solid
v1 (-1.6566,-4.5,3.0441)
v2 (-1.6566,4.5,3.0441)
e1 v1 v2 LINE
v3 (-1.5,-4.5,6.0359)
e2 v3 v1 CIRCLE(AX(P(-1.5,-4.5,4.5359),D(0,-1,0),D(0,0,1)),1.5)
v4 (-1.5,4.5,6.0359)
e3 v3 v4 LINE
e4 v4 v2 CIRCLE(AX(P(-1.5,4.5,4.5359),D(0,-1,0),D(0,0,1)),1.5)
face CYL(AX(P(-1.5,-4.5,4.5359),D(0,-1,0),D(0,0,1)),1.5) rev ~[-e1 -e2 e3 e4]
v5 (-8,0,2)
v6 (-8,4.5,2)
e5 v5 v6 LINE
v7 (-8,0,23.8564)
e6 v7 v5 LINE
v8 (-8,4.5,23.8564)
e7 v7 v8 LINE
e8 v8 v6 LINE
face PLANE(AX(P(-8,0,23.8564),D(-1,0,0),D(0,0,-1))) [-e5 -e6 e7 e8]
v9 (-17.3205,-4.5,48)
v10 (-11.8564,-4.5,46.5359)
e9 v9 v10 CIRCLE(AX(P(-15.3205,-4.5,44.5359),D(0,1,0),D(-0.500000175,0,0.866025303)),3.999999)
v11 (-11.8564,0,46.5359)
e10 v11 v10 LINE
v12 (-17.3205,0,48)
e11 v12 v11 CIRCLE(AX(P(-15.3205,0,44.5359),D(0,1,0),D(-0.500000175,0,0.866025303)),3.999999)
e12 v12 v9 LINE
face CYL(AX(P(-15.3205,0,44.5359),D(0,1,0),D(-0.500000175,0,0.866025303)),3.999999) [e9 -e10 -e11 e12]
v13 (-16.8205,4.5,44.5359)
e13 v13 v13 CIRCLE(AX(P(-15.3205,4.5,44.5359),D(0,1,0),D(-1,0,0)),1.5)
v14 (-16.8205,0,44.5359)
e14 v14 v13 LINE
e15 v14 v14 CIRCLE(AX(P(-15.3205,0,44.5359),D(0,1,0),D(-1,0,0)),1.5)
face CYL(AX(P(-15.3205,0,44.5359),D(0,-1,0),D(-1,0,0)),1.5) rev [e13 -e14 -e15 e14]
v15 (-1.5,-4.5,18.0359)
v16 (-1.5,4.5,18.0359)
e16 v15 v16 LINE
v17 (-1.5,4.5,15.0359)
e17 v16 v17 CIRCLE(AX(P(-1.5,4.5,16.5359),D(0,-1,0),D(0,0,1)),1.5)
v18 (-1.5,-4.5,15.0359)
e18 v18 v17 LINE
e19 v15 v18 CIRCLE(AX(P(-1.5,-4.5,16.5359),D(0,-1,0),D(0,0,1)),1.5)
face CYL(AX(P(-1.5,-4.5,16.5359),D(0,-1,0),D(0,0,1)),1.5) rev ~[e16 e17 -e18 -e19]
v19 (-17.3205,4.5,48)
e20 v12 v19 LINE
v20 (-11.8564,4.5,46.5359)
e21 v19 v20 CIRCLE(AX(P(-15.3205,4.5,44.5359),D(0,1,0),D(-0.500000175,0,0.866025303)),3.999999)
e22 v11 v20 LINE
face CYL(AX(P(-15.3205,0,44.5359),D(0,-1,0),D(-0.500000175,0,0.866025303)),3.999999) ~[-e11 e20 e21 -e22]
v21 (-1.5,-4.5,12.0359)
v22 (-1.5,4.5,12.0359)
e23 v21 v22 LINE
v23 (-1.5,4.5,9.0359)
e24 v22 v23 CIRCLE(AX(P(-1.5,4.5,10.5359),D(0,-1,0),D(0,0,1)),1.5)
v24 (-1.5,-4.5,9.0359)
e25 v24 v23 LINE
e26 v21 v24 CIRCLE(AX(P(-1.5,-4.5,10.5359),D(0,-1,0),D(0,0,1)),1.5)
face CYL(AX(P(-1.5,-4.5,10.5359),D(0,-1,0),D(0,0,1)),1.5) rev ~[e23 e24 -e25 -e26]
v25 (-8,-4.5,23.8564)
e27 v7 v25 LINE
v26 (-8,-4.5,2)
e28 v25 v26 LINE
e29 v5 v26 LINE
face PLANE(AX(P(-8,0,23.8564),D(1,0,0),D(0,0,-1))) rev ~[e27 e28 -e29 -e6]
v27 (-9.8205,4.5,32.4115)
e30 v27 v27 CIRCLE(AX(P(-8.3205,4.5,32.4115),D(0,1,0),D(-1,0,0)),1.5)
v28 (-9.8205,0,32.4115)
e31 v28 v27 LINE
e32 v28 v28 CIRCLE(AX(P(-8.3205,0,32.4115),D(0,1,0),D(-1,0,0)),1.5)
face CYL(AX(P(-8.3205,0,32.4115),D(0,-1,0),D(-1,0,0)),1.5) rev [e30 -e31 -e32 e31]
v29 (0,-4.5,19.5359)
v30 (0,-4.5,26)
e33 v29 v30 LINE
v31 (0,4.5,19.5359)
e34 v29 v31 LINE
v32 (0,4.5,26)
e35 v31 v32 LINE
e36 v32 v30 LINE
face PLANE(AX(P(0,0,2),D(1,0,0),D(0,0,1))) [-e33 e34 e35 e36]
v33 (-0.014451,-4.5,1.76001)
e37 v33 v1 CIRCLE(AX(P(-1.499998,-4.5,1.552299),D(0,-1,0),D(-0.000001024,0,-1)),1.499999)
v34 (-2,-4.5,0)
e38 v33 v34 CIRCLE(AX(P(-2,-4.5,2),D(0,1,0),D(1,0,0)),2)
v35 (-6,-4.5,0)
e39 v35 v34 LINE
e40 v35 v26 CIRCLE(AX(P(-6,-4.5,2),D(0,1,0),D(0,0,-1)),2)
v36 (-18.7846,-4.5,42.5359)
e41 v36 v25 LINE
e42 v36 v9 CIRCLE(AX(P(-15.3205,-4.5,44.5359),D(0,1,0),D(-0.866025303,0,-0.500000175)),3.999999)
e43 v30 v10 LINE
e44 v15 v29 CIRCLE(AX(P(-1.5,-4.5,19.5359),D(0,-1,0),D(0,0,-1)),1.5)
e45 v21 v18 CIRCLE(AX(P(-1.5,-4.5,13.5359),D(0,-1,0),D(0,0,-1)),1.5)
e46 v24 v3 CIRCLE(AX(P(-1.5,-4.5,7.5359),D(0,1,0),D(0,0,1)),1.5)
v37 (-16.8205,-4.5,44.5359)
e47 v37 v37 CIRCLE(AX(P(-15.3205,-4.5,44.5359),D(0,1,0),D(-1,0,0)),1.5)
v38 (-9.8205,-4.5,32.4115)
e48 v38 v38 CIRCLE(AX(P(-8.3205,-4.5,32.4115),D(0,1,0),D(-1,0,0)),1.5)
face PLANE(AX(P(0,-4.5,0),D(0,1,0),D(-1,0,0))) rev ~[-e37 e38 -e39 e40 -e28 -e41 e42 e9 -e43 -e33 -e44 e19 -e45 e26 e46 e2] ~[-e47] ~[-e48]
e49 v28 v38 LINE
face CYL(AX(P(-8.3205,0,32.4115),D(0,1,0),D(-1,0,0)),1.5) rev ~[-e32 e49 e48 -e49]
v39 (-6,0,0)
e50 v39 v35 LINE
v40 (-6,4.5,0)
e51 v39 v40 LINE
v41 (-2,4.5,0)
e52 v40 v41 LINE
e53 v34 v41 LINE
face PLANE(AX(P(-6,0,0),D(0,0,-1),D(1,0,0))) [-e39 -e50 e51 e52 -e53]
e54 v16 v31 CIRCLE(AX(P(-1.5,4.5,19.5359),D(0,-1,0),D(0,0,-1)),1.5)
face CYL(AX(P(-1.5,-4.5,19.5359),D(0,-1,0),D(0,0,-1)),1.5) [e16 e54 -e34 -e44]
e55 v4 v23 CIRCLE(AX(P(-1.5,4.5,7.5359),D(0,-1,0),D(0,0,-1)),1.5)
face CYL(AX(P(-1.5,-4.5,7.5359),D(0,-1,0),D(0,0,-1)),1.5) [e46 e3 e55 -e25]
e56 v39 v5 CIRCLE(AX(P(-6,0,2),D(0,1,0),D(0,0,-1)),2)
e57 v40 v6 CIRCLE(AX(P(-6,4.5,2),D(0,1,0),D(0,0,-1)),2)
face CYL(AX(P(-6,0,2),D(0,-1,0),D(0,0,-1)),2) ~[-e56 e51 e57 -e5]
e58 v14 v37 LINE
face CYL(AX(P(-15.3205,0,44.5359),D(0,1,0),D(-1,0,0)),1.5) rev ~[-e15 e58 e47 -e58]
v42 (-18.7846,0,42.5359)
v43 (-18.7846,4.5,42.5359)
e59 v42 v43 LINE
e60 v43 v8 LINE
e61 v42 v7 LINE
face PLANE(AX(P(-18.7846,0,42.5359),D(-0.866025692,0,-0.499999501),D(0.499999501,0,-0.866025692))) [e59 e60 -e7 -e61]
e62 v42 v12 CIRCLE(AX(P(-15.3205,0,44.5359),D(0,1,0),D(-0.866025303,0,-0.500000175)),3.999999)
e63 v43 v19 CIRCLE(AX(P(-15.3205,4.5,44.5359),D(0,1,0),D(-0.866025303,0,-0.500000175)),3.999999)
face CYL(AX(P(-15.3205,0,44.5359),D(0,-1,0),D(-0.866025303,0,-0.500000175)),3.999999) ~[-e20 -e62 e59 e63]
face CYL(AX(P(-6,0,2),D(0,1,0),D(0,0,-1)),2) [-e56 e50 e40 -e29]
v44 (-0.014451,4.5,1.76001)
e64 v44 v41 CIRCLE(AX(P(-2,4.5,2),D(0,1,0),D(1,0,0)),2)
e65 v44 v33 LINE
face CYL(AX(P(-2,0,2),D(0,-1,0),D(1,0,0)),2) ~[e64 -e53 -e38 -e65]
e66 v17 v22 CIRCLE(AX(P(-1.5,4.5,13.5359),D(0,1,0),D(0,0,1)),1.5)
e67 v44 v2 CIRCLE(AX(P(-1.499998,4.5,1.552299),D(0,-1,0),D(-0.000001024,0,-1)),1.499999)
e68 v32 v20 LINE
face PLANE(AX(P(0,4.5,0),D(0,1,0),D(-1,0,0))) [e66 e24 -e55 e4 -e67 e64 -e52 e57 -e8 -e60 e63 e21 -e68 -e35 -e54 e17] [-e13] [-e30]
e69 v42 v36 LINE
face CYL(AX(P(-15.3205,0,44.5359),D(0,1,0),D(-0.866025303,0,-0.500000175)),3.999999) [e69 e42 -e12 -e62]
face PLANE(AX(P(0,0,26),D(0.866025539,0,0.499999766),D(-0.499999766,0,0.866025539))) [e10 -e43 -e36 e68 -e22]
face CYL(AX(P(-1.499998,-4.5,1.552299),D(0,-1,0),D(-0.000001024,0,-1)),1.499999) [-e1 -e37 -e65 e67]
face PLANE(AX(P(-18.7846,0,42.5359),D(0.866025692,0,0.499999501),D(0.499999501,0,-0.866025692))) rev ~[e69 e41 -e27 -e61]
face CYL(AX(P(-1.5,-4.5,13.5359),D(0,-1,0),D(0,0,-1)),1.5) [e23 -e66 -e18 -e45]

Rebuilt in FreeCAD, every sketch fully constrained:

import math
import FreeCAD as App
import Part
import Sketcher
from FreeCAD import Vector

doc = App.newDocument("Part")
body = doc.addObject("PartDesign::Body", "Body")

# Sketch on XZ plane
sketch1 = body.newObject("Sketcher::SketchObject", "Sketch")
sketch1.AttachmentSupport = (doc.getObject("XZ_Plane"), [""])
sketch1.MapMode = "FlatFace"
sketch1.addGeometry(Part.LineSegment(Vector(0, 26, 0), Vector(0, 2, 0)), False)
sketch1.addGeometry(Part.ArcOfCircle(Part.Circle(Vector(-2, 2, 0), Vector(0, 0, 1), 2), math.radians(-90), math.radians(0)), False)
sketch1.addGeometry(Part.LineSegment(Vector(-2, 0, 0), Vector(-6, 0, 0)), False)
sketch1.addGeometry(Part.ArcOfCircle(Part.Circle(Vector(-6, 2, 0), Vector(0, 0, 1), 2), math.radians(180), math.radians(270)), False)
sketch1.addGeometry(Part.LineSegment(Vector(-8, 2, 0), Vector(-8, 23.9, 0)), False)
sketch1.addGeometry(Part.LineSegment(Vector(-8, 23.9, 0), Vector(-18.8, 42.5, 0)), False)
sketch1.addGeometry(Part.ArcOfCircle(Part.Circle(Vector(-15.3, 44.5, 0), Vector(0, 0, 1), 4), math.radians(30), math.radians(210)), False)
sketch1.addGeometry(Part.LineSegment(Vector(-11.9, 46.5, 0), Vector(0, 26, 0)), False)
sketch1.addGeometry(Part.Circle(Vector(-8.3, 32.4, 0), Vector(0, 0, 1), 1.5), False)
sketch1.addGeometry(Part.Circle(Vector(-15.3, 44.5, 0), Vector(0, 0, 1), 1.5), False)
sketch1.addConstraint(Sketcher.Constraint("Tangent", 0, 2, 1, 2))
sketch1.addConstraint(Sketcher.Constraint("Tangent", 1, 1, 2, 1))
sketch1.addConstraint(Sketcher.Constraint("Tangent", 2, 2, 3, 2))
sketch1.addConstraint(Sketcher.Constraint("Tangent", 3, 1, 4, 1))
sketch1.addConstraint(Sketcher.Constraint("Coincident", 4, 2, 5, 1))
sketch1.addConstraint(Sketcher.Constraint("Tangent", 5, 2, 6, 2))
sketch1.addConstraint(Sketcher.Constraint("Tangent", 6, 1, 7, 1))
sketch1.addConstraint(Sketcher.Constraint("Coincident", 7, 2, 0, 1))
sketch1.addConstraint(Sketcher.Constraint("Vertical", 0))
sketch1.addConstraint(Sketcher.Constraint("Horizontal", 2))
sketch1.addConstraint(Sketcher.Constraint("Vertical", 4))
sketch1.addConstraint(Sketcher.Constraint("Coincident", 9, 3, 6, 3))
sketch1.addConstraint(Sketcher.Constraint("Equal", 1, 3))
sketch1.addConstraint(Sketcher.Constraint("Equal", 8, 9))
sketch1.addConstraint(Sketcher.Constraint("PointOnObject", 0, 2, -2))
sketch1.addConstraint(Sketcher.Constraint("PointOnObject", 1, 1, -1))
sketch1.addConstraint(Sketcher.Constraint("Parallel", 5, 7))
sketch1.addConstraint(Sketcher.Constraint("Diameter", 8, 3.0))
sketch1.addConstraint(Sketcher.Constraint("Radius", 1, 2.0))
sketch1.addConstraint(Sketcher.Constraint("Radius", 6, 4.0))
sketch1.addConstraint(Sketcher.Constraint("DistanceX", 2, 2, 2, 1, 4.0))
sketch1.addConstraint(Sketcher.Constraint("DistanceY", -1, 1, 7, 2, 26.0))
sketch1.addConstraint(Sketcher.Constraint("DistanceY", 5, 2, 6, 3, 2.0))
sketch1.addConstraint(Sketcher.Constraint("DistanceX", 6, 3, 8, 3, 7.0))
sketch1.addConstraint(Sketcher.Constraint("DistanceY", -1, 1, 6, 3, 44.536))
sketch1.addConstraint(Sketcher.Constraint("DistanceY", 4, 2, 8, 3, 8.555))
pad1 = body.newObject("PartDesign::Pad", "Pad")
pad1.Profile = sketch1
pad1.Length = 9
pad1.Midplane = True

# Sketch on XZ plane
sketch2 = body.newObject("Sketcher::SketchObject", "Sketch001")
sketch2.AttachmentSupport = (doc.getObject("XZ_Plane"), [""])
sketch2.MapMode = "FlatFace"
sketch2.AttachmentOffset = App.Placement(Vector(0, 0, 4.5), App.Rotation())
sketch2.addGeometry(Part.LineSegment(Vector(0, 1.6, 0), Vector(0, 7.5, 0)), False)
sketch2.addGeometry(Part.ArcOfCircle(Part.Circle(Vector(-1.5, 7.5, 0), Vector(0, 0, 1), 1.5), math.radians(-90), math.radians(0)), False)
sketch2.addGeometry(Part.ArcOfCircle(Part.Circle(Vector(-1.5, 4.5, 0), Vector(0, 0, 1), 1.5), math.radians(90), math.radians(264)), False)
sketch2.addGeometry(Part.ArcOfCircle(Part.Circle(Vector(-1.5, 1.6, 0), Vector(0, 0, 1), 1.5), math.radians(0), math.radians(96)), False)
sketch2.addGeometry(Part.LineSegment(Vector(0, 7.5, 0), Vector(0, 13.5, 0)), False)
sketch2.addGeometry(Part.ArcOfCircle(Part.Circle(Vector(-1.5, 13.5, 0), Vector(0, 0, 1), 1.5), math.radians(-90), math.radians(0)), False)
sketch2.addGeometry(Part.ArcOfCircle(Part.Circle(Vector(-1.5, 10.5, 0), Vector(0, 0, 1), 1.5), math.radians(90), math.radians(270)), False)
sketch2.addGeometry(Part.ArcOfCircle(Part.Circle(Vector(-1.5, 7.5, 0), Vector(0, 0, 1), 1.5), math.radians(0), math.radians(90)), False)
sketch2.addGeometry(Part.ArcOfCircle(Part.Circle(Vector(-1.5, 19.5, 0), Vector(0, 0, 1), 1.5), math.radians(-90), math.radians(0)), False)
sketch2.addGeometry(Part.ArcOfCircle(Part.Circle(Vector(-1.5, 16.5, 0), Vector(0, 0, 1), 1.5), math.radians(90), math.radians(270)), False)
sketch2.addGeometry(Part.ArcOfCircle(Part.Circle(Vector(-1.5, 13.5, 0), Vector(0, 0, 1), 1.5), math.radians(0), math.radians(90)), False)
sketch2.addGeometry(Part.LineSegment(Vector(0, 13.5, 0), Vector(0, 19.5, 0)), False)
sketch2.addConstraint(Sketcher.Constraint("Tangent", 0, 2, 1, 2))
sketch2.addConstraint(Sketcher.Constraint("Tangent", 1, 1, 2, 1))
sketch2.addConstraint(Sketcher.Constraint("Coincident", 2, 2, 3, 2))
sketch2.addConstraint(Sketcher.Constraint("Tangent", 3, 1, 0, 1))
sketch2.addConstraint(Sketcher.Constraint("Tangent", 4, 2, 5, 2))
sketch2.addConstraint(Sketcher.Constraint("Tangent", 5, 1, 6, 1))
sketch2.addConstraint(Sketcher.Constraint("Tangent", 6, 2, 7, 2))
sketch2.addConstraint(Sketcher.Constraint("Tangent", 7, 1, 4, 1))
sketch2.addConstraint(Sketcher.Constraint("Tangent", 8, 1, 9, 1))
sketch2.addConstraint(Sketcher.Constraint("Tangent", 9, 2, 10, 2))
sketch2.addConstraint(Sketcher.Constraint("Tangent", 10, 1, 11, 1))
sketch2.addConstraint(Sketcher.Constraint("Tangent", 11, 2, 8, 2))
sketch2.addConstraint(Sketcher.Constraint("Vertical", 0))
sketch2.addConstraint(Sketcher.Constraint("Vertical", 4))
sketch2.addConstraint(Sketcher.Constraint("Vertical", 11))
sketch2.addConstraint(Sketcher.Constraint("Coincident", 7, 3, 1, 3))
sketch2.addConstraint(Sketcher.Constraint("Coincident", 10, 3, 5, 3))
sketch2.addConstraint(Sketcher.Constraint("Equal", 1, 2))
sketch2.addConstraint(Sketcher.Constraint("Equal", 2, 3))
sketch2.addConstraint(Sketcher.Constraint("Equal", 3, 5))
sketch2.addConstraint(Sketcher.Constraint("Equal", 5, 6))
sketch2.addConstraint(Sketcher.Constraint("Equal", 6, 7))
sketch2.addConstraint(Sketcher.Constraint("Equal", 7, 8))
sketch2.addConstraint(Sketcher.Constraint("Equal", 8, 9))
sketch2.addConstraint(Sketcher.Constraint("Equal", 9, 10))
sketch2.addConstraint(Sketcher.Constraint("PointOnObject", 0, 2, -2))
sketch2.addConstraint(Sketcher.Constraint("Vertical", 1, 3, 2, 3))
sketch2.addConstraint(Sketcher.Constraint("Vertical", 5, 3, 6, 3))
sketch2.addConstraint(Sketcher.Constraint("Vertical", 8, 3, 9, 3))
sketch2.addConstraint(Sketcher.Constraint("Radius", 1, 1.5))
sketch2.addConstraint(Sketcher.Constraint("DistanceY", 0, 1, 0, 2, 5.9836))
sketch2.addConstraint(Sketcher.Constraint("DistanceY", -1, 1, 1, 3, 7.536))
pocket1 = body.newObject("PartDesign::Pocket", "Pocket")
pocket1.Profile = sketch2
pocket1.Length = 9

doc.recompute()
